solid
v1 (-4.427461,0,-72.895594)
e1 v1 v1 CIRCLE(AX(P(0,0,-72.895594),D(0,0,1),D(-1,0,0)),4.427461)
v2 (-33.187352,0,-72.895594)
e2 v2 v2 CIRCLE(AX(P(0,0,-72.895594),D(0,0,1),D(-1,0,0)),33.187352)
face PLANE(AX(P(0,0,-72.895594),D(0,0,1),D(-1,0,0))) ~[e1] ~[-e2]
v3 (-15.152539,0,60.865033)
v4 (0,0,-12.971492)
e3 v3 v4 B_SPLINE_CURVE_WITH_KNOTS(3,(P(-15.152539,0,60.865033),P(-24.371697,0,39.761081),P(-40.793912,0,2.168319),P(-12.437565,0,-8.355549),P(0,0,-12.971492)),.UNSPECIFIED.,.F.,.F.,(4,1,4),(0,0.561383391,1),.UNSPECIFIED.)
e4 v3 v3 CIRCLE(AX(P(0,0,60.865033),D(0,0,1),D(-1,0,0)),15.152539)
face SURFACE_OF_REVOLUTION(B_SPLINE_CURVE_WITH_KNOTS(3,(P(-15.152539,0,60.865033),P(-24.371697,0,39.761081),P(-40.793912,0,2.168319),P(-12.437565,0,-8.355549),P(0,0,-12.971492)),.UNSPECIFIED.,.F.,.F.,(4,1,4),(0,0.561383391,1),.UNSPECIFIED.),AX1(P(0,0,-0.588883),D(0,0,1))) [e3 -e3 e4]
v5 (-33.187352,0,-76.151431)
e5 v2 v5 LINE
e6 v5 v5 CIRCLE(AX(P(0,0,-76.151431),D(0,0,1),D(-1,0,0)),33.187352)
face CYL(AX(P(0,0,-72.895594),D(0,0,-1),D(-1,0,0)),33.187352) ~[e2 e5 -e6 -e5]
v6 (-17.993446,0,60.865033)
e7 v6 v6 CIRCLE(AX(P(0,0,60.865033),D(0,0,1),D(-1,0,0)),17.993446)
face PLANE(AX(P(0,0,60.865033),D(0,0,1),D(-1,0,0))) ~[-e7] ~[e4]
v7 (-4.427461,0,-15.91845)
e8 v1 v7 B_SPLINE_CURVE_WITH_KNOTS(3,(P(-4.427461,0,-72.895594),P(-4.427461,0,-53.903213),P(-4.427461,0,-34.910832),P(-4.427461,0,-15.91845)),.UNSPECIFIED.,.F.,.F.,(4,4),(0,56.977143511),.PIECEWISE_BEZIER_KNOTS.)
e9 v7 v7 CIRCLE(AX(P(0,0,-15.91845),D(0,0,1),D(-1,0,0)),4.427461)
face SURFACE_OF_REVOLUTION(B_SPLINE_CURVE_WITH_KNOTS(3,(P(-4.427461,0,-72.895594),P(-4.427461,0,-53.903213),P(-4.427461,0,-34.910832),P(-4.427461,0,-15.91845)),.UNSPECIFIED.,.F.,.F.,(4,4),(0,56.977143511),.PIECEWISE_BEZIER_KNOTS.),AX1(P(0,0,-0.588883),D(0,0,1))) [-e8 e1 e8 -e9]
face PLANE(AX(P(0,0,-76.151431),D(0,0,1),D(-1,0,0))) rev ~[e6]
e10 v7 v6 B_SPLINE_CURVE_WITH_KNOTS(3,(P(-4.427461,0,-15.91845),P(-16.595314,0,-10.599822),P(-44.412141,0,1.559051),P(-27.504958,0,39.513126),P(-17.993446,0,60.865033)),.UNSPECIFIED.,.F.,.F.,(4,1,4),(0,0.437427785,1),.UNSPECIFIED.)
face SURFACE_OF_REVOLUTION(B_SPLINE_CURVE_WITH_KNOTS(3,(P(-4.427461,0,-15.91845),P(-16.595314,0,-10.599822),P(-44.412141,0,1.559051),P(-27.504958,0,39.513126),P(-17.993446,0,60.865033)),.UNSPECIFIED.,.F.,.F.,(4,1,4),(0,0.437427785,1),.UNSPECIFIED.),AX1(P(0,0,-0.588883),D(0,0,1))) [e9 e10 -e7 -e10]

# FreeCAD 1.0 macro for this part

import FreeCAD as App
import Part
import Sketcher

doc = App.newDocument("Part")
body = doc.addObject("PartDesign::Body", "Body")

sketch1 = doc.addObject("Sketcher::SketchObject", "Sketch")
body.addObject(sketch1)
sketch1.AttachmentSupport = (doc.XZ_Plane, [""])
sketch1.MapMode = "FlatFace"
sketch1.addGeometry([
    Part.LineSegment(App.Vector(-33.187352, -76.151431, 0), App.Vector(0, -76.151431, 0)),
    Part.LineSegment(App.Vector(0, -76.151431, 0), App.Vector(0, -12.971492, 0)),
    Part.BSplineCurve([App.Vector(-15.152539, 60.865033, 0), App.Vector(-24.371697, 39.761081, 0), App.Vector(-40.793912, 2.168319, 0), App.Vector(-12.437565, -8.355549, 0), App.Vector(0, -12.971492, 0)], [4, 1, 4], [0, 0.561383391, 1], False, 3, [1, 1, 1, 1, 1], False),
    Part.LineSegment(App.Vector(-15.152539, 60.865033, 0), App.Vector(-17.993446, 60.865033, 0)),
    Part.BSplineCurve([App.Vector(-4.427461, -15.91845, 0), App.Vector(-16.595314, -10.599822, 0), App.Vector(-44.412141, 1.559051, 0), App.Vector(-27.504958, 39.513126, 0), App.Vector(-17.993446, 60.865033, 0)], [4, 1, 4], [0, 0.437427785, 1], False, 3, [1, 1, 1, 1, 1], False),
    Part.BSplineCurve([App.Vector(-4.427461, -72.895594, 0), App.Vector(-4.427461, -53.903213, 0), App.Vector(-4.427461, -34.910832, 0), App.Vector(-4.427461, -15.91845, 0)], [4, 4], [0, 56.977143511], False, 3, [1, 1, 1, 1], False),
    Part.LineSegment(App.Vector(-4.427461, -72.895594, 0), App.Vector(-33.187352, -72.895594, 0)),
    Part.LineSegment(App.Vector(-33.187352, -72.895594, 0), App.Vector(-33.187352, -76.151431, 0)),
], False)
sketch1.addConstraint([
    Sketcher.Constraint("Block", 2),
    Sketcher.Constraint("Block", 4),
    Sketcher.Constraint("Block", 5),
    Sketcher.Constraint("Coincident", 0, 2, 1, 1),
    Sketcher.Constraint("Coincident", 1, 2, 2, 2),
    Sketcher.Constraint("Coincident", 2, 1, 3, 1),
    Sketcher.Constraint("Coincident", 3, 2, 4, 2),
    Sketcher.Constraint("Coincident", 5, 1, 6, 1),
    Sketcher.Constraint("Coincident", 6, 2, 7, 1),
    Sketcher.Constraint("Coincident", 7, 2, 0, 1),
    Sketcher.Constraint("Horizontal", 0),
    Sketcher.Constraint("Vertical", 1),
    Sketcher.Constraint("Horizontal", 6),
    Sketcher.Constraint("Vertical", 7),
    Sketcher.Constraint("DistanceX", 6, 2, 6, 1, 28.759891),
    Sketcher.Constraint("DistanceY", 1, 1, 1, 2, 63.179939),
])
revolution = doc.addObject("PartDesign::Revolution", "Revolution")
body.addObject(revolution)
revolution.Profile = sketch1
revolution.ReferenceAxis = (sketch1, ["V_Axis"])
revolution.Angle = 360

doc.recompute()
